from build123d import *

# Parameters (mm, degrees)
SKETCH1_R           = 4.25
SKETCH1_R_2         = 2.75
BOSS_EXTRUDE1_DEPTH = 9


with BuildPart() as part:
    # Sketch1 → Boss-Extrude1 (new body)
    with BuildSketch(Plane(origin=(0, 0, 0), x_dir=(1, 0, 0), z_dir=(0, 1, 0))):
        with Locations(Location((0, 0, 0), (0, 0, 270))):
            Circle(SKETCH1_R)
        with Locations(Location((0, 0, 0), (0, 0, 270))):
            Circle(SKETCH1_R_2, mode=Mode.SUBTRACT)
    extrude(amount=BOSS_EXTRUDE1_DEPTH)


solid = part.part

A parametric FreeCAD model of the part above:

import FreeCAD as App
import Part
import Sketcher

V = App.Vector
Q = App.Units.Quantity

doc = App.newDocument("Part")
body = doc.addObject("PartDesign::Body", "Body")

# Sketch on XZ plane
sketch1 = body.newObject("Sketcher::SketchObject", "Sketch")
sketch1.AttachmentSupport = (doc.getObject("XZ_Plane"), [""])
sketch1.MapMode = "FlatFace"
sketch1.addGeometry([
    Part.Circle(V(0, 0, 0), V(0, 0, 1), 4.25),
    Part.Circle(V(0, 0, 0), V(0, 0, 1), 2.75),
], False)
sketch1.addConstraint([
    Sketcher.Constraint("Coincident", 0, 3, -1, 1),
    Sketcher.Constraint("Coincident", 1, 3, -1, 1),
    Sketcher.Constraint("Diameter", 0, Q("8.5 mm")),
    Sketcher.Constraint("Diameter", 1, Q("5.5 mm")),
])
pad1 = body.newObject("PartDesign::Pad", "Pad")
pad1.Profile = sketch1
pad1.Length = 9
pad1.Reversed = True

doc.recompute()
